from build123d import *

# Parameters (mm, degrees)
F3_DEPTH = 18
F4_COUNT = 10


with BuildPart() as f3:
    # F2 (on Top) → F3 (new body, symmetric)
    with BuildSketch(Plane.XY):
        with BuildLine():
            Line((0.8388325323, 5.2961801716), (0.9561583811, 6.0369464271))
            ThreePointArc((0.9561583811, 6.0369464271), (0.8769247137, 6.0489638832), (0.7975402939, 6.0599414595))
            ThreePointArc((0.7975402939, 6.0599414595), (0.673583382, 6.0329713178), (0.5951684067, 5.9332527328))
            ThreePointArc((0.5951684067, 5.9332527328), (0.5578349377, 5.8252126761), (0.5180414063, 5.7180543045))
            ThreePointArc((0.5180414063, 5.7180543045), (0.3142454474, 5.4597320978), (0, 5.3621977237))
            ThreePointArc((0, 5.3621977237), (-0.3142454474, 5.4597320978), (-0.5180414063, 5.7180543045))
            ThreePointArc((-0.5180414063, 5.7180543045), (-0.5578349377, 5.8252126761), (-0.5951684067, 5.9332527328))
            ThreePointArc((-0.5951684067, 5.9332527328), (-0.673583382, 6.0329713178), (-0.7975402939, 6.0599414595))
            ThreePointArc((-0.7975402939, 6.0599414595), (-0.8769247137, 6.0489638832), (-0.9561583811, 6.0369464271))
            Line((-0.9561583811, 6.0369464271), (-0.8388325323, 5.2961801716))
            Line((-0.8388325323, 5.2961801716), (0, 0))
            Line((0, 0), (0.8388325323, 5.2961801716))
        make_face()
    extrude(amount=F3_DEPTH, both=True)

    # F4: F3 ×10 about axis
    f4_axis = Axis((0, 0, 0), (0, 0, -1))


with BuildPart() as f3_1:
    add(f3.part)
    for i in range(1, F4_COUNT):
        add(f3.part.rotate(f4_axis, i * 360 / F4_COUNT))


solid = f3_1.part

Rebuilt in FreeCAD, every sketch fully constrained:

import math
import FreeCAD as App
import Part
import Sketcher
Q = App.Units.Quantity

doc = App.newDocument("Part")
body = doc.addObject("PartDesign::Body", "Body")

sketch1 = body.newObject("Sketcher::SketchObject", "Sketch")
sketch1.AttachmentSupport = (doc.getObject("XY_Plane"), [""])
sketch1.MapMode = "FlatFace"
sketch1.addGeometry(Part.LineSegment(App.Vector(0.84, 5.3, 0), App.Vector(0.96, 6.04, 0)), False)
sketch1.addGeometry(Part.ArcOfCircle(Part.Circle(App.Vector(0, 0, 0), App.Vector(0, 0, 1), 6.11), math.radians(81), math.radians(82.5)), False)
sketch1.addGeometry(Part.ArcOfCircle(Part.Circle(App.Vector(0.77, 5.87, 0), App.Vector(0, 0, 1), 0.19), math.radians(83), math.radians(162)), False)
sketch1.addGeometry(Part.ArcOfCircle(Part.Circle(App.Vector(-4.15, 7.51, 0), App.Vector(0, 0, 1), 5), math.radians(-21.03), math.radians(-18.41)), False)
sketch1.addGeometry(Part.ArcOfCircle(Part.Circle(App.Vector(0, 5.92, 0), App.Vector(0, 0, 1), 0.56), math.radians(-90), math.radians(-21)), False)
sketch1.addGeometry(Part.ArcOfCircle(Part.Circle(App.Vector(0, 5.92, 0), App.Vector(0, 0, 1), 0.56), math.radians(-159), math.radians(-90)), False)
sketch1.addGeometry(Part.ArcOfCircle(Part.Circle(App.Vector(4.15, 7.51, 0), App.Vector(0, 0, 1), 5), math.radians(-161.59), math.radians(-158.97)), False)
sketch1.addGeometry(Part.ArcOfCircle(Part.Circle(App.Vector(-0.77, 5.87, 0), App.Vector(0, 0, 1), 0.19), math.radians(18), math.radians(97)), False)
sketch1.addGeometry(Part.ArcOfCircle(Part.Circle(App.Vector(0, 0, 0), App.Vector(0, 0, 1), 6.11), math.radians(97.5), math.radians(99)), False)
sketch1.addGeometry(Part.LineSegment(App.Vector(-0.96, 6.04, 0), App.Vector(-0.84, 5.3, 0)), False)
sketch1.addGeometry(Part.LineSegment(App.Vector(-0.84, 5.3, 0), App.Vector(0, 0, 0)), False)
sketch1.addGeometry(Part.LineSegment(App.Vector(0, 0, 0), App.Vector(0.84, 5.3, 0)), False)
sketch1.addConstraint(Sketcher.Constraint("Coincident", 0, 2, 1, 1))
sketch1.addConstraint(Sketcher.Constraint("Tangent", 1, 2, 2, 1))
sketch1.addConstraint(Sketcher.Constraint("Tangent", 2, 2, 3, 2))
sketch1.addConstraint(Sketcher.Constraint("Tangent", 3, 1, 4, 2))
sketch1.addConstraint(Sketcher.Constraint("Tangent", 4, 1, 5, 2))
sketch1.addConstraint(Sketcher.Constraint("Tangent", 5, 1, 6, 2))
sketch1.addConstraint(Sketcher.Constraint("Tangent", 6, 1, 7, 1))
sketch1.addConstraint(Sketcher.Constraint("Tangent", 7, 2, 8, 1))
sketch1.addConstraint(Sketcher.Constraint("Coincident", 8, 2, 9, 1))
sketch1.addConstraint(Sketcher.Constraint("Coincident", 9, 2, 10, 1))
sketch1.addConstraint(Sketcher.Constraint("Coincident", 10, 2, 11, 1))
sketch1.addConstraint(Sketcher.Constraint("Coincident", 11, 2, 0, 1))
sketch1.addConstraint(Sketcher.Constraint("Coincident", 1, 3, -1, 1))
sketch1.addConstraint(Sketcher.Constraint("Coincident", 8, 3, -1, 1))
sketch1.addConstraint(Sketcher.Constraint("Coincident", 10, 2, -1, 1))
sketch1.addConstraint(Sketcher.Constraint("Equal", 4, 5))
sketch1.addConstraint(Sketcher.Constraint("Equal", 3, 6))
sketch1.addConstraint(Sketcher.Constraint("Equal", 2, 7))
sketch1.addConstraint(Sketcher.Constraint("Equal", 1, 8))
sketch1.addConstraint(Sketcher.Constraint("Symmetric", 3, 3, 6, 3, -2))
sketch1.addConstraint(Sketcher.Constraint("Symmetric", 9, 2, 11, 2, -2))
sketch1.addConstraint(Sketcher.Constraint("PointOnObject", 4, 1, -2))
sketch1.addConstraint(Sketcher.Constraint("Parallel", 9, 10))
sketch1.addConstraint(Sketcher.Constraint("Parallel", 0, 11))
sketch1.addConstraint(Sketcher.Constraint("Radius", 3, Q("5 mm")))
sketch1.addConstraint(Sketcher.Constraint("Angle", 0, Q("81 deg")))
sketch1.addConstraint(Sketcher.Constraint("Radius", 4, Q("0.555 mm")))
sketch1.addConstraint(Sketcher.Constraint("Radius", 2, Q("0.1875 mm")))
sketch1.addConstraint(Sketcher.Constraint("Distance", 0, Q("0.75 mm")))
sketch1.addConstraint(Sketcher.Constraint("DistanceX", 3, 3, -1, 1, Q("4.148998 mm")))
sketch1.addConstraint(Sketcher.Constraint("Radius", 1, Q("6.112197 mm")))
sketch1.addConstraint(Sketcher.Constraint("DistanceY", 2, 3, 0, 2, Q("0.162902 mm")))
pad1 = body.newObject("PartDesign::Pad", "Pad")
pad1.Profile = sketch1
pad1.Length = 36
pad1.Midplane = True
body2 = doc.addObject("PartDesign::Body", "Body001")
body2.AllowCompound = True
doc.recompute()

body2.BaseFeature = body
doc.recompute()

body3 = doc.addObject("PartDesign::Body", "Body002")
body3.BaseFeature = body
body3.Placement = App.Placement(App.Vector(0, 0, 0), App.Rotation(App.Vector(0, 0, -1), 36))
boolean = body2.newObject("PartDesign::Boolean", "Boolean")
boolean.Type = "Fuse"
boolean.addObjects([body3])
doc.recompute()

body4 = doc.addObject("PartDesign::Body", "Body003")
body4.BaseFeature = body
body4.Placement = App.Placement(App.Vector(0, 0, 0), App.Rotation(App.Vector(0, 0, -1), 72))
boolean2 = body2.newObject("PartDesign::Boolean", "Boolean001")
boolean2.Type = "Fuse"
boolean2.addObjects([body4])
doc.recompute()

body5 = doc.addObject("PartDesign::Body", "Body004")
body5.BaseFeature = body
body5.Placement = App.Placement(App.Vector(0, 0, 0), App.Rotation(App.Vector(0, 0, -1), 108))
boolean3 = body2.newObject("PartDesign::Boolean", "Boolean002")
boolean3.Type = "Fuse"
boolean3.addObjects([body5])
doc.recompute()

body6 = doc.addObject("PartDesign::Body", "Body005")
body6.BaseFeature = body
body6.Placement = App.Placement(App.Vector(0, 0, 0), App.Rotation(App.Vector(0, 0, -1), 144))
boolean4 = body2.newObject("PartDesign::Boolean", "Boolean003")
boolean4.Type = "Fuse"
boolean4.addObjects([body6])
doc.recompute()

body7 = doc.addObject("PartDesign::Body", "Body006")
body7.BaseFeature = body
body7.Placement = App.Placement(App.Vector(0, 0, 0), App.Rotation(App.Vector(0, 0, -1), 180))
boolean5 = body2.newObject("PartDesign::Boolean", "Boolean004")
boolean5.Type = "Fuse"
boolean5.addObjects([body7])
doc.recompute()

body8 = doc.addObject("PartDesign::Body", "Body007")
body8.BaseFeature = body
body8.Placement = App.Placement(App.Vector(0, 0, 0), App.Rotation(App.Vector(0, 0, -1), 216))
boolean6 = body2.newObject("PartDesign::Boolean", "Boolean005")
boolean6.Type = "Fuse"
boolean6.addObjects([body8])
doc.recompute()

body9 = doc.addObject("PartDesign::Body", "Body008")
body9.BaseFeature = body
body9.Placement = App.Placement(App.Vector(0, 0, 0), App.Rotation(App.Vector(0, 0, -1), 252))
boolean7 = body2.newObject("PartDesign::Boolean", "Boolean006")
boolean7.Type = "Fuse"
boolean7.addObjects([body9])
doc.recompute()

body10 = doc.addObject("PartDesign::Body", "Body009")
body10.BaseFeature = body
body10.Placement = App.Placement(App.Vector(0, 0, 0), App.Rotation(App.Vector(0, 0, -1), 288))
boolean8 = body2.newObject("PartDesign::Boolean", "Boolean007")
boolean8.Type = "Fuse"
boolean8.addObjects([body10])
doc.recompute()

body.Placement = App.Placement(App.Vector(0, 0, 0), App.Rotation(App.Vector(0, 0, -1), 324))
boolean9 = body2.newObject("PartDesign::Boolean", "Boolean008")
boolean9.Type = "Fuse"
boolean9.addObjects([body])

doc.recompute()
